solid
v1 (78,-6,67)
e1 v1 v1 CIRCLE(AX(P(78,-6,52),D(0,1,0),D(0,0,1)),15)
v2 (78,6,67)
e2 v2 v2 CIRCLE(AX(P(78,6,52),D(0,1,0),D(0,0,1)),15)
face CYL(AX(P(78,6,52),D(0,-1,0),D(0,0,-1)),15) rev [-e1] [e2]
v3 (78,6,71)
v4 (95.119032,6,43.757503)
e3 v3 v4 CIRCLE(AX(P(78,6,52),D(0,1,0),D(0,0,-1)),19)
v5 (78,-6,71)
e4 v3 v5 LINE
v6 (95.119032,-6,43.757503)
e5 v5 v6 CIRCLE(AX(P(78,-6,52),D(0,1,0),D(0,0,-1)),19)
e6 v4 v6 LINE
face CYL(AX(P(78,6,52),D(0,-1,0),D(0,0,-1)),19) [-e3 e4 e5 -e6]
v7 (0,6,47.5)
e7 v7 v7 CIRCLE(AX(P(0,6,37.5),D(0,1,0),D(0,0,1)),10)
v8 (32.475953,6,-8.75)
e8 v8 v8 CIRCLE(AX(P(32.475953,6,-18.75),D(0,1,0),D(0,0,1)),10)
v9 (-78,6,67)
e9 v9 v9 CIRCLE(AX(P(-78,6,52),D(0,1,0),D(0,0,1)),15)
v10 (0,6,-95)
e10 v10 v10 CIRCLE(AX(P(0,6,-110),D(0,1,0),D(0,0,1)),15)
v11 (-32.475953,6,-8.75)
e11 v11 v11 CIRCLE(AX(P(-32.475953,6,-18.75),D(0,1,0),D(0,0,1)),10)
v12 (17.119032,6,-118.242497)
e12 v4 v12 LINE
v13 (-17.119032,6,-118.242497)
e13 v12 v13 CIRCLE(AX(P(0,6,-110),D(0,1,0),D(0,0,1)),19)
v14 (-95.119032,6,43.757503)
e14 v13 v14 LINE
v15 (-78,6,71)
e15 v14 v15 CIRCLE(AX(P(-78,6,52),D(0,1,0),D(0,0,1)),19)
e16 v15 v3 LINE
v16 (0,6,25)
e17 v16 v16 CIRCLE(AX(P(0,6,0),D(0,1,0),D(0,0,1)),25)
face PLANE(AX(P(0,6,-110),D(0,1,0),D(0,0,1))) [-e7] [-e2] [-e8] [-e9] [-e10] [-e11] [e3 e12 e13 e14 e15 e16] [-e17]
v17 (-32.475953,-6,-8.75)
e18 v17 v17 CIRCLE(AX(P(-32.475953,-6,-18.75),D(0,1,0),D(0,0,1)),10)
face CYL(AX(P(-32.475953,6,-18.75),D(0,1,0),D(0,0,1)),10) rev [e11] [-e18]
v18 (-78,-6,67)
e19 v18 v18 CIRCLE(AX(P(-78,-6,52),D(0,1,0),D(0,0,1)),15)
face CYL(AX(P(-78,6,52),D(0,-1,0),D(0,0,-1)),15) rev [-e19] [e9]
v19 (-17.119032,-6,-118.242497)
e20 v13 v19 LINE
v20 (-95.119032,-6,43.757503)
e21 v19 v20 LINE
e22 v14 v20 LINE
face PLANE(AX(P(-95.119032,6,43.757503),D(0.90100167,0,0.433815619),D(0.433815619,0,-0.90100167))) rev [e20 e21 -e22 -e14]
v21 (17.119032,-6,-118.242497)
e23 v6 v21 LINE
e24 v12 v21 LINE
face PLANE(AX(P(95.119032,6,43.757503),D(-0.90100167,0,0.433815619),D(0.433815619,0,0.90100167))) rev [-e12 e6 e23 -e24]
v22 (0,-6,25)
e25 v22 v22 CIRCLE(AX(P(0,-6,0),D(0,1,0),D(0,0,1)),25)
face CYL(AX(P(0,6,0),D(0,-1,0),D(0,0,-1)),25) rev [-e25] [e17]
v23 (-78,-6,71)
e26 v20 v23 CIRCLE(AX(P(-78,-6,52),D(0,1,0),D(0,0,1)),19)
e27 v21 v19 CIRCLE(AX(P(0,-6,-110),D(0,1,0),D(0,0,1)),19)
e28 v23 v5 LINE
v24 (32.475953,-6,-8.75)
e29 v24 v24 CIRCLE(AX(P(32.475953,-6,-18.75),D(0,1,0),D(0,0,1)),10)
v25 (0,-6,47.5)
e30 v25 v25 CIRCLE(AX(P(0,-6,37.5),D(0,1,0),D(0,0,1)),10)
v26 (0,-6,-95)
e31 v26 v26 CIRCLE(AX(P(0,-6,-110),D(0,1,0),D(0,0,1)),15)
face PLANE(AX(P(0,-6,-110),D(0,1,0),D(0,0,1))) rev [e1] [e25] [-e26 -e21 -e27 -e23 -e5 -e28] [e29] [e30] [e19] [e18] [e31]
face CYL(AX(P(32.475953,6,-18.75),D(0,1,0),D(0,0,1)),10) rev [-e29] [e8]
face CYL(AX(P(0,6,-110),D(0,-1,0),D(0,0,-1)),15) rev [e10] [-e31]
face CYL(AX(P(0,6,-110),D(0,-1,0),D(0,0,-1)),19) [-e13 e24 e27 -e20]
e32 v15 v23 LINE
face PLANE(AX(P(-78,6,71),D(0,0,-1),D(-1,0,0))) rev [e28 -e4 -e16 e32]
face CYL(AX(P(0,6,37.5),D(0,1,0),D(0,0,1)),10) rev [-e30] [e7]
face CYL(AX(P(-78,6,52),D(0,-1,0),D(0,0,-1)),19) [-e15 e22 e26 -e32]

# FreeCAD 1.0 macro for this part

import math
import FreeCAD as App
import Part
import Sketcher
from FreeCAD import Vector

doc = App.newDocument("Part")
params = doc.addObject("Spreadsheet::Sheet", "Params")
for row, (alias, value) in enumerate([
    ("sketch1_diameter", "30 mm"),
    ("sketch1_diameter2", "50 mm"),
    ("sketch1_radius", "19 mm"),
    ("sketch1_width", "156 mm"),
    ("pad1_length", "12 mm"),
    ("sketch2_diameter", "20 mm"),
    ("hole_diameter", "20 mm"),
], start=1):
    params.set(f"A{row}", alias)
    params.set(f"B{row}", "=" + value)
    params.setAlias(f"B{row}", alias)

body = doc.addObject("PartDesign::Body", "Body")

# Sketch on XZ plane
sketch1 = body.newObject("Sketcher::SketchObject", "Sketch")
sketch1.AttachmentSupport = (doc.getObject("XZ_Plane"), [""])
sketch1.MapMode = "FlatFace"
sketch1.addGeometry([
    Part.LineSegment(Vector(-17, -118, 0), Vector(-95, 44, 0)),  # 0
    Part.ArcOfCircle(Part.Circle(Vector(-78, 52, 0), Vector(0, 0, 1), 19), math.radians(90), math.radians(206)),  # 1
    Part.LineSegment(Vector(-78, 71, 0), Vector(78, 71, 0)),  # 2
    Part.ArcOfCircle(Part.Circle(Vector(78, 52, 0), Vector(0, 0, 1), 19), math.radians(-26), math.radians(90)),  # 3
    Part.LineSegment(Vector(95, 44, 0), Vector(17, -118, 0)),  # 4
    Part.ArcOfCircle(Part.Circle(Vector(0, -110, 0), Vector(0, 0, 1), 19), math.radians(-154), math.radians(-26)),  # 5
    Part.Circle(Vector(78, 52, 0), Vector(0, 0, 1), 15),  # 6
    Part.Circle(Vector(-78, 52, 0), Vector(0, 0, 1), 15),  # 7
    Part.Circle(Vector(0, 0, 0), Vector(0, 0, 1), 25),  # 8
    Part.Circle(Vector(0, -110, 0), Vector(0, 0, 1), 15),  # 9
], False)
sketch1.addConstraint([
    Sketcher.Constraint("Tangent", 0, 2, 1, 2),
    Sketcher.Constraint("Tangent", 1, 1, 2, 1),
    Sketcher.Constraint("Tangent", 2, 2, 3, 2),
    Sketcher.Constraint("Tangent", 3, 1, 4, 1),
    Sketcher.Constraint("Tangent", 4, 2, 5, 2),
    Sketcher.Constraint("Tangent", 5, 1, 0, 1),
    Sketcher.Constraint("Horizontal", 2),
    Sketcher.Constraint("Coincident", 8, 3, -1, 1),
    Sketcher.Constraint("Coincident", 6, 3, 3, 3),
    Sketcher.Constraint("Coincident", 7, 3, 1, 3),
    Sketcher.Constraint("Coincident", 9, 3, 5, 3),
    Sketcher.Constraint("Equal", 1, 3),
    Sketcher.Constraint("Equal", 3, 5),
    Sketcher.Constraint("Equal", 6, 7),
    Sketcher.Constraint("Equal", 7, 9),
    Sketcher.Constraint("Symmetric", 0, 2, 3, 1, -2),
    Sketcher.Constraint("Diameter", 6, 30.0),
    Sketcher.Constraint("Diameter", 8, 50.0),
    Sketcher.Constraint("Radius", 1, 19.0),
    Sketcher.Constraint("DistanceX", 2, 1, 2, 2, 156.0),
    Sketcher.Constraint("DistanceY", -1, 1, 1, 3, 52.0),
    Sketcher.Constraint("DistanceY", 5, 3, -1, 1, 110.0),
])
sketch1.setExpression("Constraints[16]", "Params.sketch1_diameter")
sketch1.setExpression("Constraints[17]", "Params.sketch1_diameter2")
sketch1.setExpression("Constraints[18]", "Params.sketch1_radius")
sketch1.setExpression("Constraints[19]", "Params.sketch1_width")
pad1 = body.newObject("PartDesign::Pad", "Pad")
pad1.Profile = sketch1
pad1.setExpression("Length", "Params.pad1_length")
pad1.Midplane = True

# Sketch on XZ plane
sketch2 = body.newObject("Sketcher::SketchObject", "Sketch001")
sketch2.AttachmentSupport = (doc.getObject("XZ_Plane"), [""])
sketch2.MapMode = "FlatFace"
sketch2.AttachmentOffset = App.Placement(Vector(0, 0, -6), App.Rotation())
sketch2.addGeometry(Part.Circle(Vector(0, 38, 0), Vector(0, 0, 1), 10), False)
sketch2.addConstraint([
    Sketcher.Constraint("PointOnObject", 0, 3, -2),
    Sketcher.Constraint("Diameter", 0, 20.0),
    Sketcher.Constraint("DistanceY", -1, 1, 0, 3, 37.5),
])
sketch2.setExpression("Constraints[1]", "Params.sketch2_diameter")
doc.recompute()
hole = body.newObject("PartDesign::Hole", "Hole")
hole.Profile = sketch2
hole.ThreadType = "None"
hole.setExpression("Diameter", "Params.hole_diameter")
hole.DepthType = "ThroughAll"
hole.Reversed = True
doc.recompute()

polarpattern = body.newObject("PartDesign::PolarPattern", "PolarPattern")
polarpattern.Originals = [hole]
polarpattern.Axis = (doc.getObject("Y_Axis"), [""])
polarpattern.Angle = 360
polarpattern.Occurrences = 3
body.Tip = polarpattern

doc.recompute()
